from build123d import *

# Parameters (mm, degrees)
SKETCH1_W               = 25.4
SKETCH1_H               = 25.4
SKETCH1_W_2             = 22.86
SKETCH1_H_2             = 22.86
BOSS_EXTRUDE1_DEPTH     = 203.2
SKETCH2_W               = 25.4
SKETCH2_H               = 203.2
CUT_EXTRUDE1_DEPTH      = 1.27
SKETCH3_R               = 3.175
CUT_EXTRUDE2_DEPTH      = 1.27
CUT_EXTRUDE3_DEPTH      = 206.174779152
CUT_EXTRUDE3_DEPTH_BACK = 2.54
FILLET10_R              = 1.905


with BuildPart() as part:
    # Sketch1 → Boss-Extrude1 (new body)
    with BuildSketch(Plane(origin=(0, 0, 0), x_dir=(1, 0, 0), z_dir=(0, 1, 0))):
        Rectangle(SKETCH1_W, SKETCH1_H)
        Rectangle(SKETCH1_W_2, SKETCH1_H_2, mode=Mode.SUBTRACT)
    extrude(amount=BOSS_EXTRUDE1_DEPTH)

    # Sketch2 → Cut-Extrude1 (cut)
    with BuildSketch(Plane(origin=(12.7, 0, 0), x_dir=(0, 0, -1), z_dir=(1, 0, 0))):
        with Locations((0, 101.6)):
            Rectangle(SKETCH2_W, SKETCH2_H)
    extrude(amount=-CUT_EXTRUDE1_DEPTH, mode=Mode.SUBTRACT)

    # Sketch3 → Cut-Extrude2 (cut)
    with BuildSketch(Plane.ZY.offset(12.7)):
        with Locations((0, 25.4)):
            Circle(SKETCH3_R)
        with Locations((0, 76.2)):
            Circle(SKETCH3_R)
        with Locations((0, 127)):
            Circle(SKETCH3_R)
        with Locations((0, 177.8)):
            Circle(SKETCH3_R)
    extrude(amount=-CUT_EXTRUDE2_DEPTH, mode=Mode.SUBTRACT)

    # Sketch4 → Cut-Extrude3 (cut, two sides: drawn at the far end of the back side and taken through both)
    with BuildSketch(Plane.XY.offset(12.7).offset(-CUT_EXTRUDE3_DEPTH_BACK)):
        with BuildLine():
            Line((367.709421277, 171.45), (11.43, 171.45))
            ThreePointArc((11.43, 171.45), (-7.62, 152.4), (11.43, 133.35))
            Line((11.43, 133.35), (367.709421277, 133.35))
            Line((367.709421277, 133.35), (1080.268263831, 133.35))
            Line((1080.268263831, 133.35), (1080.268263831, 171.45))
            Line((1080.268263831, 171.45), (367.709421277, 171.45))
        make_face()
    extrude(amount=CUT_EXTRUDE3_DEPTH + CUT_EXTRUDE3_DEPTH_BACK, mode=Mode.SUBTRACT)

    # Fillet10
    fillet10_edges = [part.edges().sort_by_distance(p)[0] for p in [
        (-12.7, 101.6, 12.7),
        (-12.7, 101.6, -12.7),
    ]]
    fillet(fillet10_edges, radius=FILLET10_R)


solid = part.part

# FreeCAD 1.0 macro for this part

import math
import FreeCAD as App
import Part
import Sketcher
from FreeCAD import Vector
Q = App.Units.Quantity


def edges_at(feature, points):
    """Names of the edges that pass closest to the given points."""
    edges = feature.Shape.Edges
    near = lambda p: min(range(len(edges)), key=lambda i: edges[i].distToShape(Part.Vertex(*p))[0])
    return sorted({f"Edge{near(p) + 1}" for p in points})

doc = App.newDocument("Part")
body = doc.addObject("PartDesign::Body", "Body")

# Sketch on XZ plane
sketch1 = body.newObject("Sketcher::SketchObject", "Sketch")
sketch1.AttachmentSupport = (doc.getObject("XZ_Plane"), [""])
sketch1.MapMode = "FlatFace"
sketch1.addGeometry([
    Part.LineSegment(Vector(-13, -13, 0), Vector(-13, 13, 0)),  # 0
    Part.LineSegment(Vector(-13, 13, 0), Vector(13, 13, 0)),  # 1
    Part.LineSegment(Vector(13, 13, 0), Vector(13, -13, 0)),  # 2
    Part.LineSegment(Vector(13, -13, 0), Vector(-13, -13, 0)),  # 3
    Part.LineSegment(Vector(11, 11, 0), Vector(-11, 11, 0)),  # 4
    Part.LineSegment(Vector(-11, 11, 0), Vector(-11, -11, 0)),  # 5
    Part.LineSegment(Vector(-11, -11, 0), Vector(11, -11, 0)),  # 6
    Part.LineSegment(Vector(11, -11, 0), Vector(11, 11, 0)),  # 7
], False)
sketch1.addConstraint([
    Sketcher.Constraint("Coincident", 0, 2, 1, 1),
    Sketcher.Constraint("Coincident", 1, 2, 2, 1),
    Sketcher.Constraint("Coincident", 2, 2, 3, 1),
    Sketcher.Constraint("Coincident", 3, 2, 0, 1),
    Sketcher.Constraint("Coincident", 4, 2, 5, 1),
    Sketcher.Constraint("Coincident", 5, 2, 6, 1),
    Sketcher.Constraint("Coincident", 6, 2, 7, 1),
    Sketcher.Constraint("Coincident", 7, 2, 4, 1),
    Sketcher.Constraint("Vertical", 0),
    Sketcher.Constraint("Horizontal", 1),
    Sketcher.Constraint("Vertical", 2),
    Sketcher.Constraint("Horizontal", 3),
    Sketcher.Constraint("Horizontal", 4),
    Sketcher.Constraint("Vertical", 5),
    Sketcher.Constraint("Horizontal", 6),
    Sketcher.Constraint("Vertical", 7),
    Sketcher.Constraint("Symmetric", 0, 2, 2, 2, -1, 1),
    Sketcher.Constraint("Symmetric", 4, 2, 6, 2, -1, 1),
    Sketcher.Constraint("Equal", 3, 0),
    Sketcher.Constraint("Equal", 6, 5),
    Sketcher.Constraint("DistanceX", 1, 1, 1, 2, Q("1 in")),
    Sketcher.Constraint("DistanceX", 4, 2, 4, 1, Q("0.9 in")),
])
pad1 = body.newObject("PartDesign::Pad", "Pad")
pad1.Profile = sketch1
pad1.Length = Q("8 in")
pad1.Reversed = True

# Sketch on YZ plane
sketch2 = body.newObject("Sketcher::SketchObject", "Sketch001")
sketch2.AttachmentSupport = (doc.getObject("YZ_Plane"), [""])
sketch2.MapMode = "FlatFace"
sketch2.AttachmentOffset = App.Placement(Vector(0, 0, 0.5 * 25.4), App.Rotation())
sketch2.addGeometry([
    Part.LineSegment(Vector(203, 13, 0), Vector(0, 13, 0)),
    Part.LineSegment(Vector(0, 13, 0), Vector(0, -13, 0)),
    Part.LineSegment(Vector(0, -13, 0), Vector(203, -13, 0)),
    Part.LineSegment(Vector(203, -13, 0), Vector(203, 13, 0)),
], False)
sketch2.addConstraint([
    Sketcher.Constraint("Coincident", 0, 2, 1, 1),
    Sketcher.Constraint("Coincident", 1, 2, 2, 1),
    Sketcher.Constraint("Coincident", 2, 2, 3, 1),
    Sketcher.Constraint("Coincident", 3, 2, 0, 1),
    Sketcher.Constraint("Horizontal", 0),
    Sketcher.Constraint("Vertical", 1),
    Sketcher.Constraint("Horizontal", 2),
    Sketcher.Constraint("Vertical", 3),
    Sketcher.Constraint("Symmetric", 0, 2, 1, 2, -1, 1),
    Sketcher.Constraint("DistanceX", 0, 2, 0, 1, Q("8 in")),
    Sketcher.Constraint("DistanceY", 1, 2, 1, 1, Q("1 in")),
])
pocket1 = body.newObject("PartDesign::Pocket", "Pocket")
pocket1.Profile = sketch2
pocket1.Length = Q("0.05 in")

# Sketch on YZ plane
sketch3 = body.newObject("Sketcher::SketchObject", "Sketch002")
sketch3.AttachmentSupport = (doc.getObject("YZ_Plane"), [""])
sketch3.MapMode = "FlatFace"
sketch3.AttachmentOffset = App.Placement(Vector(0, 0, -0.5 * 25.4), App.Rotation())
sketch3.addGeometry([
    Part.Circle(Vector(25.4, 0, 0), Vector(0, 0, 1), 3.2),
    Part.Circle(Vector(76.2, 0, 0), Vector(0, 0, 1), 3.2),
    Part.Circle(Vector(127, 0, 0), Vector(0, 0, 1), 3.2),
    Part.Circle(Vector(177.8, 0, 0), Vector(0, 0, 1), 3.2),
], False)
sketch3.addConstraint([
    Sketcher.Constraint("Equal", 0, 1),
    Sketcher.Constraint("Equal", 1, 2),
    Sketcher.Constraint("Equal", 2, 3),
    Sketcher.Constraint("PointOnObject", 0, 3, -1),
    Sketcher.Constraint("PointOnObject", 1, 3, -1),
    Sketcher.Constraint("PointOnObject", 2, 3, -1),
    Sketcher.Constraint("PointOnObject", 3, 3, -1),
    Sketcher.Constraint("Diameter", 0, Q("0.25 in")),
    Sketcher.Constraint("DistanceX", -1, 1, 0, 3, Q("1 in")),
    Sketcher.Constraint("DistanceX", -1, 1, 1, 3, Q("3 in")),
    Sketcher.Constraint("DistanceX", -1, 1, 2, 3, Q("5 in")),
    Sketcher.Constraint("DistanceX", -1, 1, 3, 3, Q("7 in")),
])
pocket2 = body.newObject("PartDesign::Pocket", "Pocket001")
pocket2.Profile = sketch3
pocket2.Length = Q("0.05 in")
pocket2.Reversed = True

# Sketch on XY plane
sketch4 = body.newObject("Sketcher::SketchObject", "Sketch003")
sketch4.AttachmentSupport = (doc.getObject("XY_Plane"), [""])
sketch4.MapMode = "FlatFace"
sketch4.AttachmentOffset = App.Placement(Vector(0, 0, 0.5 * 25.4), App.Rotation())
sketch4.addGeometry([
    Part.ArcOfCircle(Part.Circle(Vector(11, 152, 0), Vector(0, 0, 1), 19), math.radians(90), math.radians(270)),
    Part.LineSegment(Vector(11, 133, 0), Vector(1080, 133, 0)),
    Part.LineSegment(Vector(1080, 133, 0), Vector(1080, 171, 0)),
    Part.LineSegment(Vector(1080, 171, 0), Vector(11, 171, 0)),
], False)
sketch4.addConstraint([
    Sketcher.Constraint("Tangent", 0, 2, 1, 1),
    Sketcher.Constraint("Coincident", 1, 2, 2, 1),
    Sketcher.Constraint("Coincident", 2, 2, 3, 1),
    Sketcher.Constraint("Tangent", 3, 2, 0, 1),
    Sketcher.Constraint("Horizontal", 1),
    Sketcher.Constraint("Vertical", 2),
    Sketcher.Constraint("Horizontal", 3),
    Sketcher.Constraint("Radius", 0, Q("0.75 in")),
    Sketcher.Constraint("DistanceY", -1, 1, 0, 3, Q("6 in")),
    Sketcher.Constraint("DistanceX", -1, 1, 0, 3, Q("0.45 in")),
    Sketcher.Constraint("DistanceX", 1, 1, 1, 2, 1068.838264),
])
pocket3 = body.newObject("PartDesign::Pocket", "Pocket002")
pocket3.Profile = sketch4
pocket3.Type = "TwoLengths"
pocket3.Length = 206.174779
pocket3.Length2 = Q("0.1 in")
pocket3.Reversed = True
doc.recompute()

fillet = body.newObject("PartDesign::Fillet", "Fillet")
fillet.Base = (pocket3, edges_at(pocket3, [(-12.7, 101.6, 12.7), (-12.7, 101.6, -12.7)]))
fillet.Radius = Q("0.075 in")

doc.recompute()
